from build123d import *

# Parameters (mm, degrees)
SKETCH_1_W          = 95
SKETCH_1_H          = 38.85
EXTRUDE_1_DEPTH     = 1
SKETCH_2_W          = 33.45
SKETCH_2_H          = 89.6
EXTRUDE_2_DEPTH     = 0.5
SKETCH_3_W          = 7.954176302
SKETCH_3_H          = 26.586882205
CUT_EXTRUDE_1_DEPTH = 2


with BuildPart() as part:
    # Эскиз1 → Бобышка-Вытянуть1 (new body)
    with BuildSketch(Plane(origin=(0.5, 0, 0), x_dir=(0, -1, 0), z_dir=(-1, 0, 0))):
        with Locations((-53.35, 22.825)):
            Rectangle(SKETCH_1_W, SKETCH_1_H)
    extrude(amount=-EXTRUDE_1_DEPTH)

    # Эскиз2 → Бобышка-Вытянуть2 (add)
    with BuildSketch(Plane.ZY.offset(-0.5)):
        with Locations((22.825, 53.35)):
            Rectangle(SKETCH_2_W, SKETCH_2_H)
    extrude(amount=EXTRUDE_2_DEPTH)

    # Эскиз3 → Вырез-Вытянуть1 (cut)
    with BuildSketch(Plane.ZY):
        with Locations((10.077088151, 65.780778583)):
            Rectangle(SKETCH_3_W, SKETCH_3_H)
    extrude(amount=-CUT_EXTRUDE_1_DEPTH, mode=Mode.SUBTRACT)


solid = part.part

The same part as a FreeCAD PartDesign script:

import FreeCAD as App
import Part
import Sketcher

V = App.Vector
Q = App.Units.Quantity

doc = App.newDocument("Part")
body = doc.addObject("PartDesign::Body", "Body")

# Sketch on YZ plane
sketch1 = body.newObject("Sketcher::SketchObject", "Sketch")
sketch1.AttachmentSupport = (doc.getObject("YZ_Plane"), [""])
sketch1.MapMode = "FlatFace"
sketch1.AttachmentOffset = App.Placement(V(0, 0, 0.5), App.Rotation())
sketch1.addGeometry([
    Part.LineSegment(V(101, 42, 0), V(101, 3, 0)),
    Part.LineSegment(V(101, 3, 0), V(6, 3, 0)),
    Part.LineSegment(V(6, 3, 0), V(6, 42, 0)),
    Part.LineSegment(V(6, 42, 0), V(101, 42, 0)),
], False)
sketch1.addConstraint([
    Sketcher.Constraint("Coincident", 0, 2, 1, 1),
    Sketcher.Constraint("Coincident", 1, 2, 2, 1),
    Sketcher.Constraint("Coincident", 2, 2, 3, 1),
    Sketcher.Constraint("Coincident", 3, 2, 0, 1),
    Sketcher.Constraint("Vertical", 0),
    Sketcher.Constraint("Horizontal", 1),
    Sketcher.Constraint("Vertical", 2),
    Sketcher.Constraint("Horizontal", 3),
    Sketcher.Constraint("DistanceX", 1, 2, 1, 1, Q("95 mm")),
    Sketcher.Constraint("DistanceY", 0, 2, 0, 1, Q("38.85 mm")),
    Sketcher.Constraint("DistanceY", -1, 1, 0, 2, Q("3.4 mm")),
    Sketcher.Constraint("DistanceX", -1, 1, 0, 2, Q("100.85 mm")),
])
pad1 = body.newObject("PartDesign::Pad", "Pad")
pad1.Profile = sketch1
pad1.Length = 1

# Sketch on YZ plane
sketch2 = body.newObject("Sketcher::SketchObject", "Sketch001")
sketch2.AttachmentSupport = (doc.getObject("YZ_Plane"), [""])
sketch2.MapMode = "FlatFace"
sketch2.AttachmentOffset = App.Placement(V(0, 0, 0.5), App.Rotation())
sketch2.addGeometry([
    Part.LineSegment(V(98, 6, 0), V(9, 6, 0)),
    Part.LineSegment(V(9, 6, 0), V(9, 40, 0)),
    Part.LineSegment(V(9, 40, 0), V(98, 40, 0)),
    Part.LineSegment(V(98, 40, 0), V(98, 6, 0)),
], False)
sketch2.addConstraint([
    Sketcher.Constraint("Coincident", 0, 2, 1, 1),
    Sketcher.Constraint("Coincident", 1, 2, 2, 1),
    Sketcher.Constraint("Coincident", 2, 2, 3, 1),
    Sketcher.Constraint("Coincident", 3, 2, 0, 1),
    Sketcher.Constraint("Horizontal", 0),
    Sketcher.Constraint("Vertical", 1),
    Sketcher.Constraint("Horizontal", 2),
    Sketcher.Constraint("Vertical", 3),
    Sketcher.Constraint("DistanceX", 0, 2, 0, 1, Q("89.6 mm")),
    Sketcher.Constraint("DistanceY", 1, 1, 1, 2, Q("33.45 mm")),
    Sketcher.Constraint("DistanceY", -1, 1, 0, 2, Q("6.1 mm")),
    Sketcher.Constraint("DistanceX", -1, 1, 0, 2, Q("8.55 mm")),
])
pad2 = body.newObject("PartDesign::Pad", "Pad001")
pad2.Profile = sketch2
pad2.Length = 0.5
pad2.Reversed = True

# Sketch on YZ plane
sketch3 = body.newObject("Sketcher::SketchObject", "Sketch002")
sketch3.AttachmentSupport = (doc.getObject("YZ_Plane"), [""])
sketch3.MapMode = "FlatFace"
sketch3.addGeometry([
    Part.LineSegment(V(79, 6, 0), V(52, 6, 0)),
    Part.LineSegment(V(52, 6, 0), V(52, 14, 0)),
    Part.LineSegment(V(52, 14, 0), V(79, 14, 0)),
    Part.LineSegment(V(79, 14, 0), V(79, 6, 0)),
], False)
sketch3.addConstraint([
    Sketcher.Constraint("Coincident", 0, 2, 1, 1),
    Sketcher.Constraint("Coincident", 1, 2, 2, 1),
    Sketcher.Constraint("Coincident", 2, 2, 3, 1),
    Sketcher.Constraint("Coincident", 3, 2, 0, 1),
    Sketcher.Constraint("Horizontal", 0),
    Sketcher.Constraint("Vertical", 1),
    Sketcher.Constraint("Horizontal", 2),
    Sketcher.Constraint("Vertical", 3),
    Sketcher.Constraint("DistanceY", -1, 1, 0, 2, Q("6.1 mm")),
    Sketcher.Constraint("DistanceX", 0, 2, 0, 1, Q("26.586882 mm")),
    Sketcher.Constraint("DistanceY", 1, 1, 1, 2, Q("7.954176 mm")),
    Sketcher.Constraint("DistanceX", -1, 1, 2, 2, Q("79.07422 mm")),
])
pocket1 = body.newObject("PartDesign::Pocket", "Pocket")
pocket1.Profile = sketch3
pocket1.Length = 2
pocket1.Reversed = True

doc.recompute()
